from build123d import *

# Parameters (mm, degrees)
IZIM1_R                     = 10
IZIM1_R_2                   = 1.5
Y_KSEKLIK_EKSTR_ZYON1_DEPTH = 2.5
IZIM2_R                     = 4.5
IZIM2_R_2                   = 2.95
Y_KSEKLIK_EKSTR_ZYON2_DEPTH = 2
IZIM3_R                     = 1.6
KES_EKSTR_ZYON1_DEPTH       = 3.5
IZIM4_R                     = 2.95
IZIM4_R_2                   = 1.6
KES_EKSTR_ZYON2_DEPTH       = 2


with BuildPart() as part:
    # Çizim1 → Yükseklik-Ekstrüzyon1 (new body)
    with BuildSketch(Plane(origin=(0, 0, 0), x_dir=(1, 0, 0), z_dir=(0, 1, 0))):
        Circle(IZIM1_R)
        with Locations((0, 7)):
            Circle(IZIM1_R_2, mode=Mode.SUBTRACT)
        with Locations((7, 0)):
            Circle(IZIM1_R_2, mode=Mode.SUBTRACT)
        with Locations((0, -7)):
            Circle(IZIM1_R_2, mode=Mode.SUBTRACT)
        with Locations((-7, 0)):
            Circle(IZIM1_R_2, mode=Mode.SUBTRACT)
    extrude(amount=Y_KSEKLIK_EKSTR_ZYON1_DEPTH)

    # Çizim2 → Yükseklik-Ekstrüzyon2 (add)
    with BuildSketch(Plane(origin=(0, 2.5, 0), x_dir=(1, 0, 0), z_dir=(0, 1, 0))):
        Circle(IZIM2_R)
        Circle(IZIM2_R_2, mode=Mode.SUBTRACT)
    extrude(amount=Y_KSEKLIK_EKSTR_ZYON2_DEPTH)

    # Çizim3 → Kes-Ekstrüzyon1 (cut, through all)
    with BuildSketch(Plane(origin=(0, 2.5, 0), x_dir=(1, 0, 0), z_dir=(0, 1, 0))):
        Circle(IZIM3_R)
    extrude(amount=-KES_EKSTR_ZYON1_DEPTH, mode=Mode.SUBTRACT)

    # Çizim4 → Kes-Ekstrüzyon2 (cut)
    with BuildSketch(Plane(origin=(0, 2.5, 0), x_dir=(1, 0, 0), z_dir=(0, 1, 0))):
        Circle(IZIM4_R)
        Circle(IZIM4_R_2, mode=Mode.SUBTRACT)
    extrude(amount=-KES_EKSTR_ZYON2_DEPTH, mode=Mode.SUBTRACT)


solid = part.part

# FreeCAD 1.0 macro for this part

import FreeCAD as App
import Part
import Sketcher

V = App.Vector
Q = App.Units.Quantity

doc = App.newDocument("Part")
body = doc.addObject("PartDesign::Body", "Body")

# Sketch on XZ plane
sketch1 = body.newObject("Sketcher::SketchObject", "Sketch")
sketch1.AttachmentSupport = (doc.getObject("XZ_Plane"), [""])
sketch1.MapMode = "FlatFace"
sketch1.addGeometry([
    Part.Circle(V(0, 0, 0), V(0, 0, 1), 10),  # 0
    Part.Circle(V(0, 7, 0), V(0, 0, 1), 1.5),  # 1
    Part.Circle(V(-7, 0, 0), V(0, 0, 1), 1.5),  # 2
    Part.Circle(V(7, 0, 0), V(0, 0, 1), 1.5),  # 3
    Part.Circle(V(0, -7, 0), V(0, 0, 1), 1.5),  # 4
], False)
sketch1.addConstraint([
    Sketcher.Constraint("Coincident", 0, 3, -1, 1),
    Sketcher.Constraint("Equal", 1, 2),
    Sketcher.Constraint("Equal", 2, 3),
    Sketcher.Constraint("Equal", 3, 4),
    Sketcher.Constraint("Symmetric", 2, 3, 3, 3, -1, 1),
    Sketcher.Constraint("Symmetric", 1, 3, 4, 3, -1, 1),
    Sketcher.Constraint("PointOnObject", 1, 3, -2),
    Sketcher.Constraint("PointOnObject", 2, 3, -1),
    Sketcher.Constraint("Diameter", 0, Q("20 mm")),
    Sketcher.Constraint("Diameter", 1, Q("3 mm")),
    Sketcher.Constraint("DistanceY", -1, 1, 1, 3, Q("7 mm")),
    Sketcher.Constraint("DistanceX", 2, 3, -1, 1, Q("7 mm")),
])
pad1 = body.newObject("PartDesign::Pad", "Pad")
pad1.Profile = sketch1
pad1.Length = 2.5
pad1.Reversed = True

# Sketch on XZ plane
sketch2 = body.newObject("Sketcher::SketchObject", "Sketch001")
sketch2.AttachmentSupport = (doc.getObject("XZ_Plane"), [""])
sketch2.MapMode = "FlatFace"
sketch2.AttachmentOffset = App.Placement(V(0, 0, -2.5), App.Rotation())
sketch2.addGeometry([
    Part.Circle(V(0, 0, 0), V(0, 0, 1), 4.5),
    Part.Circle(V(0, 0, 0), V(0, 0, 1), 2.95),
], False)
sketch2.addConstraint([
    Sketcher.Constraint("Coincident", 0, 3, -1, 1),
    Sketcher.Constraint("Coincident", 1, 3, -1, 1),
    Sketcher.Constraint("Diameter", 0, Q("9 mm")),
    Sketcher.Constraint("Diameter", 1, Q("5.9 mm")),
])
pad2 = body.newObject("PartDesign::Pad", "Pad001")
pad2.Profile = sketch2
pad2.Length = 2
pad2.Reversed = True

# Sketch on XZ plane
sketch3 = body.newObject("Sketcher::SketchObject", "Sketch002")
sketch3.AttachmentSupport = (doc.getObject("XZ_Plane"), [""])
sketch3.MapMode = "FlatFace"
sketch3.AttachmentOffset = App.Placement(V(0, 0, -2.5), App.Rotation())
sketch3.addGeometry(Part.Circle(V(0, 0, 0), V(0, 0, 1), 1.6), False)
sketch3.addConstraint([
    Sketcher.Constraint("Coincident", 0, 3, -1, 1),
    Sketcher.Constraint("Diameter", 0, Q("3.2 mm")),
])
pocket1 = body.newObject("PartDesign::Pocket", "Pocket")
pocket1.Profile = sketch3
pocket1.Type = "ThroughAll"
pocket1.Reversed = True

# Sketch on XZ plane
sketch4 = body.newObject("Sketcher::SketchObject", "Sketch003")
sketch4.AttachmentSupport = (doc.getObject("XZ_Plane"), [""])
sketch4.MapMode = "FlatFace"
sketch4.AttachmentOffset = App.Placement(V(0, 0, -2.5), App.Rotation())
sketch4.addGeometry([
    Part.Circle(V(0, 0, 0), V(0, 0, 1), 2.95),
    Part.Circle(V(0, 0, 0), V(0, 0, 1), 1.6),
], False)
sketch4.addConstraint([
    Sketcher.Constraint("Coincident", 0, 3, -1, 1),
    Sketcher.Constraint("Coincident", 1, 3, -1, 1),
    Sketcher.Constraint("Diameter", 0, Q("5.9 mm")),
    Sketcher.Constraint("Diameter", 1, Q("3.2 mm")),
])
pocket2 = body.newObject("PartDesign::Pocket", "Pocket001")
pocket2.Profile = sketch4
pocket2.Length = 2
pocket2.Reversed = True

doc.recompute()
